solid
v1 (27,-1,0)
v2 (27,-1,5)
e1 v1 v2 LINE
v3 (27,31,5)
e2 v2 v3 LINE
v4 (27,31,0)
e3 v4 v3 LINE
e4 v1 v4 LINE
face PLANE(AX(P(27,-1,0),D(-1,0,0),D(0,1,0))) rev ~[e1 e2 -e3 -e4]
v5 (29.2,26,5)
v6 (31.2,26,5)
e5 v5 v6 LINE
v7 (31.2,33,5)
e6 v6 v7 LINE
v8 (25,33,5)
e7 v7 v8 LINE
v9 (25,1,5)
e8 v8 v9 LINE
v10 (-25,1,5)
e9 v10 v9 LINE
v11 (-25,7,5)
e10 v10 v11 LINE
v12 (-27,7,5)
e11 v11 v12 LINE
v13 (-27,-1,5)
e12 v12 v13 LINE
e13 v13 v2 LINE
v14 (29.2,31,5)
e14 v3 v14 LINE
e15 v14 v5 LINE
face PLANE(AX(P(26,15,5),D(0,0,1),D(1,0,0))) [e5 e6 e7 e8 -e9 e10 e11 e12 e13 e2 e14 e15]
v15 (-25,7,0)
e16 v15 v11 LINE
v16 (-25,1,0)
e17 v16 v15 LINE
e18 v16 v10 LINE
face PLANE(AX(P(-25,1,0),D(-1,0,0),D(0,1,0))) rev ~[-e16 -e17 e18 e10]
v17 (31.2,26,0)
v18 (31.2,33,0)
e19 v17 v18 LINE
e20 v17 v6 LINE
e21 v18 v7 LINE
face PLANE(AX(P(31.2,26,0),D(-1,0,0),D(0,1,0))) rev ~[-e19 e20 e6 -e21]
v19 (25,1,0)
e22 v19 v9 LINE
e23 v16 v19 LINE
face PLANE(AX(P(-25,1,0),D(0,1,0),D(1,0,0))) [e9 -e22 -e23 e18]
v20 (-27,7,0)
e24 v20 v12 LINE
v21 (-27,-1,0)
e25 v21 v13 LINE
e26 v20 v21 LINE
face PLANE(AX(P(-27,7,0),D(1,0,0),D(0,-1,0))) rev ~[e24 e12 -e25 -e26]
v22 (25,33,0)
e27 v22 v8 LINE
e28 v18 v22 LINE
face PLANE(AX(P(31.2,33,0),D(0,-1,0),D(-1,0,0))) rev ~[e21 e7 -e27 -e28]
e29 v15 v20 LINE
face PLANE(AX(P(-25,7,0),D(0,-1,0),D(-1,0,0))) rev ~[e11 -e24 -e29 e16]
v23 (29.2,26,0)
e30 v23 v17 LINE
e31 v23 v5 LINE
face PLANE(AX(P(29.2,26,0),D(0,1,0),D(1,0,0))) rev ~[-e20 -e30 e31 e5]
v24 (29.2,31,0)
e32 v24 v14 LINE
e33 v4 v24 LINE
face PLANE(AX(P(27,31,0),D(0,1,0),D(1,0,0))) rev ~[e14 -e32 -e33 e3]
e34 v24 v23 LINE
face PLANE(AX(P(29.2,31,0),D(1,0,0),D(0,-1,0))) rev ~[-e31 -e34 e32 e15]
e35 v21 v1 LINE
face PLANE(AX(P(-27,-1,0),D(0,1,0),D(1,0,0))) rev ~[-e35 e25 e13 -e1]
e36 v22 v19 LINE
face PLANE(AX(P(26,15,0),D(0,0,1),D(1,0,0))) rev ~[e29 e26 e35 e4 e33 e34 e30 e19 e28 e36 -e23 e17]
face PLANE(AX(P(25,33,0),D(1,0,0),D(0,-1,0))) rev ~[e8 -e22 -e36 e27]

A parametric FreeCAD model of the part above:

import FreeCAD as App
import Part
import Sketcher
Q = App.Units.Quantity

doc = App.newDocument("Part")
body = doc.addObject("PartDesign::Body", "Body")

# Sketch on XY plane
sketch1 = body.newObject("Sketcher::SketchObject", "Sketch")
sketch1.AttachmentSupport = (doc.getObject("XY_Plane"), [""])
sketch1.MapMode = "FlatFace"
sketch1.addGeometry([
    Part.LineSegment(App.Vector(27, -1, 0), App.Vector(27, 31, 0)),  # 0
    Part.LineSegment(App.Vector(27, 31, 0), App.Vector(29.2, 31, 0)),  # 1
    Part.LineSegment(App.Vector(29.2, 31, 0), App.Vector(29.2, 26, 0)),  # 2
    Part.LineSegment(App.Vector(29.2, 26, 0), App.Vector(31.2, 26, 0)),  # 3
    Part.LineSegment(App.Vector(31.2, 26, 0), App.Vector(31.2, 33, 0)),  # 4
    Part.LineSegment(App.Vector(31.2, 33, 0), App.Vector(25, 33, 0)),  # 5
    Part.LineSegment(App.Vector(25, 33, 0), App.Vector(25, 1, 0)),  # 6
    Part.LineSegment(App.Vector(25, 1, 0), App.Vector(-25, 1, 0)),  # 7
    Part.LineSegment(App.Vector(-25, 1, 0), App.Vector(-25, 7, 0)),  # 8
    Part.LineSegment(App.Vector(-25, 7, 0), App.Vector(-27, 7, 0)),  # 9
    Part.LineSegment(App.Vector(-27, 7, 0), App.Vector(-27, -1, 0)),  # 10
    Part.LineSegment(App.Vector(-27, -1, 0), App.Vector(27, -1, 0)),  # 11
], False)
sketch1.addConstraint([
    Sketcher.Constraint("Coincident", 0, 2, 1, 1),
    Sketcher.Constraint("Coincident", 1, 2, 2, 1),
    Sketcher.Constraint("Coincident", 2, 2, 3, 1),
    Sketcher.Constraint("Coincident", 3, 2, 4, 1),
    Sketcher.Constraint("Coincident", 4, 2, 5, 1),
    Sketcher.Constraint("Coincident", 5, 2, 6, 1),
    Sketcher.Constraint("Coincident", 6, 2, 7, 1),
    Sketcher.Constraint("Coincident", 7, 2, 8, 1),
    Sketcher.Constraint("Coincident", 8, 2, 9, 1),
    Sketcher.Constraint("Coincident", 9, 2, 10, 1),
    Sketcher.Constraint("Coincident", 10, 2, 11, 1),
    Sketcher.Constraint("Coincident", 11, 2, 0, 1),
    Sketcher.Constraint("Vertical", 0),
    Sketcher.Constraint("Horizontal", 1),
    Sketcher.Constraint("Vertical", 2),
    Sketcher.Constraint("Horizontal", 3),
    Sketcher.Constraint("Vertical", 4),
    Sketcher.Constraint("Horizontal", 5),
    Sketcher.Constraint("Vertical", 6),
    Sketcher.Constraint("Horizontal", 7),
    Sketcher.Constraint("Vertical", 8),
    Sketcher.Constraint("Horizontal", 9),
    Sketcher.Constraint("Vertical", 10),
    Sketcher.Constraint("Horizontal", 11),
    Sketcher.Constraint("Equal", 3, 9),
    Sketcher.Constraint("Equal", 0, 6),
    Sketcher.Constraint("DistanceX", 3, 1, 3, 2, Q("2 mm")),
    Sketcher.Constraint("DistanceX", 7, 2, 7, 1, Q("50 mm")),
    Sketcher.Constraint("DistanceX", 11, 1, 11, 2, Q("54 mm")),
    Sketcher.Constraint("DistanceY", 0, 1, 0, 2, Q("32 mm")),
    Sketcher.Constraint("DistanceY", 2, 2, 2, 1, Q("5 mm")),
    Sketcher.Constraint("DistanceY", 4, 1, 4, 2, Q("7 mm")),
    Sketcher.Constraint("DistanceY", 8, 1, 8, 2, Q("6 mm")),
    Sketcher.Constraint("DistanceX", 1, 1, 1, 2, Q("2.2 mm")),
    Sketcher.Constraint("DistanceX", -1, 1, 0, 2, Q("27 mm")),
    Sketcher.Constraint("DistanceY", -1, 1, 0, 2, Q("31 mm")),
])
pad1 = body.newObject("PartDesign::Pad", "Pad")
pad1.Profile = sketch1
pad1.Length = 5

doc.recompute()
